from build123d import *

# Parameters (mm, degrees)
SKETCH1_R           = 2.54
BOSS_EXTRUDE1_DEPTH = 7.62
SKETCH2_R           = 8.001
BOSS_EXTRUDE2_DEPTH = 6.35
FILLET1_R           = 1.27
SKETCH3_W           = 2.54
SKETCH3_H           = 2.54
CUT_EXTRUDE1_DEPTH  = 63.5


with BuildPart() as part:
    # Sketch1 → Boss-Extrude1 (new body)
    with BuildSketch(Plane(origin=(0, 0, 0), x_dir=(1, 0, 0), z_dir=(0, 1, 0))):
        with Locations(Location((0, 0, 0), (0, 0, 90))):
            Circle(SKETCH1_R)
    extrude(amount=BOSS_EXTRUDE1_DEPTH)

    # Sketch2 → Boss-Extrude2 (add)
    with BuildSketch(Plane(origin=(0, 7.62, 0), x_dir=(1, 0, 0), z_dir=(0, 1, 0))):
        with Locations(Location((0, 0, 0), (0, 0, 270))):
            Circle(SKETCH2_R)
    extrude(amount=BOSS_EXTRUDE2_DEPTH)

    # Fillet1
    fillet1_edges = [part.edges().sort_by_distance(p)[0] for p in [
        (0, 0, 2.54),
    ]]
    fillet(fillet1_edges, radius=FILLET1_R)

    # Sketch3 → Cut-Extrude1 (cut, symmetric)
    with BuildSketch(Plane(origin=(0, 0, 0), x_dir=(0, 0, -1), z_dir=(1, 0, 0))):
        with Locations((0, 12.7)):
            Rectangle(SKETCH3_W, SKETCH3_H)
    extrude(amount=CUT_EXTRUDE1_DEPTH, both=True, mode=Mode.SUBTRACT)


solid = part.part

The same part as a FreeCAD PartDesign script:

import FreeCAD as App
import Part
import Sketcher

V = App.Vector
Q = App.Units.Quantity


def edges_at(feature, points):
    """Names of the edges that pass closest to the given points."""
    edges = feature.Shape.Edges
    near = lambda p: min(range(len(edges)), key=lambda i: edges[i].distToShape(Part.Vertex(*p))[0])
    return sorted({f"Edge{near(p) + 1}" for p in points})

doc = App.newDocument("Part")
params = doc.addObject("Spreadsheet::Sheet", "Params")
for row, (alias, value) in enumerate([
    ("sketch1_diameter", "0.2 in"),
    ("pad1_length", "0.3 in"),
    ("sketch2_diameter", "0.63 in"),
    ("pad2_length", "0.25 in"),
    ("fillet_radius", "0.05 in"),
    ("sketch3_width", "0.1 in"),
    ("pocket1_length", "5 in"),
], start=1):
    params.set(f"A{row}", alias)
    params.set(f"B{row}", "=" + value)
    params.setAlias(f"B{row}", alias)

body = doc.addObject("PartDesign::Body", "Body")

# Sketch on XZ plane
sketch1 = body.newObject("Sketcher::SketchObject", "Sketch")
sketch1.AttachmentSupport = (doc.getObject("XZ_Plane"), [""])
sketch1.MapMode = "FlatFace"
sketch1.addGeometry(Part.Circle(V(0, 0, 0), V(0, 0, 1), 2.5), False)
sketch1.addConstraint([
    Sketcher.Constraint("Coincident", 0, 3, -1, 1),
    Sketcher.Constraint("Diameter", 0, Q("0.2 in")),
])
sketch1.setExpression("Constraints[1]", "Params.sketch1_diameter")
pad1 = body.newObject("PartDesign::Pad", "Pad")
pad1.Profile = sketch1
pad1.setExpression("Length", "Params.pad1_length")
pad1.Reversed = True

# Sketch on XZ plane
sketch2 = body.newObject("Sketcher::SketchObject", "Sketch001")
sketch2.AttachmentSupport = (doc.getObject("XZ_Plane"), [""])
sketch2.MapMode = "FlatFace"
sketch2.AttachmentOffset = App.Placement(V(0, 0, -0.3 * 25.4), App.Rotation())
sketch2.addGeometry(Part.Circle(V(0, 0, 0), V(0, 0, 1), 8), False)
sketch2.addConstraint([
    Sketcher.Constraint("Coincident", 0, 3, -1, 1),
    Sketcher.Constraint("Diameter", 0, Q("0.63 in")),
])
sketch2.setExpression("Constraints[1]", "Params.sketch2_diameter")
pad2 = body.newObject("PartDesign::Pad", "Pad001")
pad2.Profile = sketch2
pad2.setExpression("Length", "Params.pad2_length")
pad2.Reversed = True
doc.recompute()

fillet = body.newObject("PartDesign::Fillet", "Fillet")
fillet.Base = (pad2, edges_at(pad2, [(0, 0, 2.54)]))
fillet.setExpression("Radius", "Params.fillet_radius")

# Sketch on YZ plane
sketch3 = body.newObject("Sketcher::SketchObject", "Sketch002")
sketch3.AttachmentSupport = (doc.getObject("YZ_Plane"), [""])
sketch3.MapMode = "FlatFace"
sketch3.addGeometry([
    Part.LineSegment(V(14, 1.3, 0), V(11.4, 1.3, 0)),
    Part.LineSegment(V(11.4, 1.3, 0), V(11.4, -1.3, 0)),
    Part.LineSegment(V(11.4, -1.3, 0), V(14, -1.3, 0)),
    Part.LineSegment(V(14, -1.3, 0), V(14, 1.3, 0)),
], False)
sketch3.addConstraint([
    Sketcher.Constraint("Coincident", 0, 2, 1, 1),
    Sketcher.Constraint("Coincident", 1, 2, 2, 1),
    Sketcher.Constraint("Coincident", 2, 2, 3, 1),
    Sketcher.Constraint("Coincident", 3, 2, 0, 1),
    Sketcher.Constraint("Horizontal", 0),
    Sketcher.Constraint("Vertical", 1),
    Sketcher.Constraint("Horizontal", 2),
    Sketcher.Constraint("Vertical", 3),
    Sketcher.Constraint("Equal", 2, 1),
    Sketcher.Constraint("DistanceX", 0, 2, 0, 1, Q("0.1 in")),
    Sketcher.Constraint("DistanceX", -1, 1, 0, 2, Q("0.45 in")),
    Sketcher.Constraint("DistanceY", -1, 1, 0, 2, Q("0.05 in")),
])
sketch3.setExpression("Constraints[9]", "Params.sketch3_width")
pocket1 = body.newObject("PartDesign::Pocket", "Pocket")
pocket1.Profile = sketch3
pocket1.setExpression("Length", "Params.pocket1_length")
pocket1.Midplane = True

doc.recompute()
